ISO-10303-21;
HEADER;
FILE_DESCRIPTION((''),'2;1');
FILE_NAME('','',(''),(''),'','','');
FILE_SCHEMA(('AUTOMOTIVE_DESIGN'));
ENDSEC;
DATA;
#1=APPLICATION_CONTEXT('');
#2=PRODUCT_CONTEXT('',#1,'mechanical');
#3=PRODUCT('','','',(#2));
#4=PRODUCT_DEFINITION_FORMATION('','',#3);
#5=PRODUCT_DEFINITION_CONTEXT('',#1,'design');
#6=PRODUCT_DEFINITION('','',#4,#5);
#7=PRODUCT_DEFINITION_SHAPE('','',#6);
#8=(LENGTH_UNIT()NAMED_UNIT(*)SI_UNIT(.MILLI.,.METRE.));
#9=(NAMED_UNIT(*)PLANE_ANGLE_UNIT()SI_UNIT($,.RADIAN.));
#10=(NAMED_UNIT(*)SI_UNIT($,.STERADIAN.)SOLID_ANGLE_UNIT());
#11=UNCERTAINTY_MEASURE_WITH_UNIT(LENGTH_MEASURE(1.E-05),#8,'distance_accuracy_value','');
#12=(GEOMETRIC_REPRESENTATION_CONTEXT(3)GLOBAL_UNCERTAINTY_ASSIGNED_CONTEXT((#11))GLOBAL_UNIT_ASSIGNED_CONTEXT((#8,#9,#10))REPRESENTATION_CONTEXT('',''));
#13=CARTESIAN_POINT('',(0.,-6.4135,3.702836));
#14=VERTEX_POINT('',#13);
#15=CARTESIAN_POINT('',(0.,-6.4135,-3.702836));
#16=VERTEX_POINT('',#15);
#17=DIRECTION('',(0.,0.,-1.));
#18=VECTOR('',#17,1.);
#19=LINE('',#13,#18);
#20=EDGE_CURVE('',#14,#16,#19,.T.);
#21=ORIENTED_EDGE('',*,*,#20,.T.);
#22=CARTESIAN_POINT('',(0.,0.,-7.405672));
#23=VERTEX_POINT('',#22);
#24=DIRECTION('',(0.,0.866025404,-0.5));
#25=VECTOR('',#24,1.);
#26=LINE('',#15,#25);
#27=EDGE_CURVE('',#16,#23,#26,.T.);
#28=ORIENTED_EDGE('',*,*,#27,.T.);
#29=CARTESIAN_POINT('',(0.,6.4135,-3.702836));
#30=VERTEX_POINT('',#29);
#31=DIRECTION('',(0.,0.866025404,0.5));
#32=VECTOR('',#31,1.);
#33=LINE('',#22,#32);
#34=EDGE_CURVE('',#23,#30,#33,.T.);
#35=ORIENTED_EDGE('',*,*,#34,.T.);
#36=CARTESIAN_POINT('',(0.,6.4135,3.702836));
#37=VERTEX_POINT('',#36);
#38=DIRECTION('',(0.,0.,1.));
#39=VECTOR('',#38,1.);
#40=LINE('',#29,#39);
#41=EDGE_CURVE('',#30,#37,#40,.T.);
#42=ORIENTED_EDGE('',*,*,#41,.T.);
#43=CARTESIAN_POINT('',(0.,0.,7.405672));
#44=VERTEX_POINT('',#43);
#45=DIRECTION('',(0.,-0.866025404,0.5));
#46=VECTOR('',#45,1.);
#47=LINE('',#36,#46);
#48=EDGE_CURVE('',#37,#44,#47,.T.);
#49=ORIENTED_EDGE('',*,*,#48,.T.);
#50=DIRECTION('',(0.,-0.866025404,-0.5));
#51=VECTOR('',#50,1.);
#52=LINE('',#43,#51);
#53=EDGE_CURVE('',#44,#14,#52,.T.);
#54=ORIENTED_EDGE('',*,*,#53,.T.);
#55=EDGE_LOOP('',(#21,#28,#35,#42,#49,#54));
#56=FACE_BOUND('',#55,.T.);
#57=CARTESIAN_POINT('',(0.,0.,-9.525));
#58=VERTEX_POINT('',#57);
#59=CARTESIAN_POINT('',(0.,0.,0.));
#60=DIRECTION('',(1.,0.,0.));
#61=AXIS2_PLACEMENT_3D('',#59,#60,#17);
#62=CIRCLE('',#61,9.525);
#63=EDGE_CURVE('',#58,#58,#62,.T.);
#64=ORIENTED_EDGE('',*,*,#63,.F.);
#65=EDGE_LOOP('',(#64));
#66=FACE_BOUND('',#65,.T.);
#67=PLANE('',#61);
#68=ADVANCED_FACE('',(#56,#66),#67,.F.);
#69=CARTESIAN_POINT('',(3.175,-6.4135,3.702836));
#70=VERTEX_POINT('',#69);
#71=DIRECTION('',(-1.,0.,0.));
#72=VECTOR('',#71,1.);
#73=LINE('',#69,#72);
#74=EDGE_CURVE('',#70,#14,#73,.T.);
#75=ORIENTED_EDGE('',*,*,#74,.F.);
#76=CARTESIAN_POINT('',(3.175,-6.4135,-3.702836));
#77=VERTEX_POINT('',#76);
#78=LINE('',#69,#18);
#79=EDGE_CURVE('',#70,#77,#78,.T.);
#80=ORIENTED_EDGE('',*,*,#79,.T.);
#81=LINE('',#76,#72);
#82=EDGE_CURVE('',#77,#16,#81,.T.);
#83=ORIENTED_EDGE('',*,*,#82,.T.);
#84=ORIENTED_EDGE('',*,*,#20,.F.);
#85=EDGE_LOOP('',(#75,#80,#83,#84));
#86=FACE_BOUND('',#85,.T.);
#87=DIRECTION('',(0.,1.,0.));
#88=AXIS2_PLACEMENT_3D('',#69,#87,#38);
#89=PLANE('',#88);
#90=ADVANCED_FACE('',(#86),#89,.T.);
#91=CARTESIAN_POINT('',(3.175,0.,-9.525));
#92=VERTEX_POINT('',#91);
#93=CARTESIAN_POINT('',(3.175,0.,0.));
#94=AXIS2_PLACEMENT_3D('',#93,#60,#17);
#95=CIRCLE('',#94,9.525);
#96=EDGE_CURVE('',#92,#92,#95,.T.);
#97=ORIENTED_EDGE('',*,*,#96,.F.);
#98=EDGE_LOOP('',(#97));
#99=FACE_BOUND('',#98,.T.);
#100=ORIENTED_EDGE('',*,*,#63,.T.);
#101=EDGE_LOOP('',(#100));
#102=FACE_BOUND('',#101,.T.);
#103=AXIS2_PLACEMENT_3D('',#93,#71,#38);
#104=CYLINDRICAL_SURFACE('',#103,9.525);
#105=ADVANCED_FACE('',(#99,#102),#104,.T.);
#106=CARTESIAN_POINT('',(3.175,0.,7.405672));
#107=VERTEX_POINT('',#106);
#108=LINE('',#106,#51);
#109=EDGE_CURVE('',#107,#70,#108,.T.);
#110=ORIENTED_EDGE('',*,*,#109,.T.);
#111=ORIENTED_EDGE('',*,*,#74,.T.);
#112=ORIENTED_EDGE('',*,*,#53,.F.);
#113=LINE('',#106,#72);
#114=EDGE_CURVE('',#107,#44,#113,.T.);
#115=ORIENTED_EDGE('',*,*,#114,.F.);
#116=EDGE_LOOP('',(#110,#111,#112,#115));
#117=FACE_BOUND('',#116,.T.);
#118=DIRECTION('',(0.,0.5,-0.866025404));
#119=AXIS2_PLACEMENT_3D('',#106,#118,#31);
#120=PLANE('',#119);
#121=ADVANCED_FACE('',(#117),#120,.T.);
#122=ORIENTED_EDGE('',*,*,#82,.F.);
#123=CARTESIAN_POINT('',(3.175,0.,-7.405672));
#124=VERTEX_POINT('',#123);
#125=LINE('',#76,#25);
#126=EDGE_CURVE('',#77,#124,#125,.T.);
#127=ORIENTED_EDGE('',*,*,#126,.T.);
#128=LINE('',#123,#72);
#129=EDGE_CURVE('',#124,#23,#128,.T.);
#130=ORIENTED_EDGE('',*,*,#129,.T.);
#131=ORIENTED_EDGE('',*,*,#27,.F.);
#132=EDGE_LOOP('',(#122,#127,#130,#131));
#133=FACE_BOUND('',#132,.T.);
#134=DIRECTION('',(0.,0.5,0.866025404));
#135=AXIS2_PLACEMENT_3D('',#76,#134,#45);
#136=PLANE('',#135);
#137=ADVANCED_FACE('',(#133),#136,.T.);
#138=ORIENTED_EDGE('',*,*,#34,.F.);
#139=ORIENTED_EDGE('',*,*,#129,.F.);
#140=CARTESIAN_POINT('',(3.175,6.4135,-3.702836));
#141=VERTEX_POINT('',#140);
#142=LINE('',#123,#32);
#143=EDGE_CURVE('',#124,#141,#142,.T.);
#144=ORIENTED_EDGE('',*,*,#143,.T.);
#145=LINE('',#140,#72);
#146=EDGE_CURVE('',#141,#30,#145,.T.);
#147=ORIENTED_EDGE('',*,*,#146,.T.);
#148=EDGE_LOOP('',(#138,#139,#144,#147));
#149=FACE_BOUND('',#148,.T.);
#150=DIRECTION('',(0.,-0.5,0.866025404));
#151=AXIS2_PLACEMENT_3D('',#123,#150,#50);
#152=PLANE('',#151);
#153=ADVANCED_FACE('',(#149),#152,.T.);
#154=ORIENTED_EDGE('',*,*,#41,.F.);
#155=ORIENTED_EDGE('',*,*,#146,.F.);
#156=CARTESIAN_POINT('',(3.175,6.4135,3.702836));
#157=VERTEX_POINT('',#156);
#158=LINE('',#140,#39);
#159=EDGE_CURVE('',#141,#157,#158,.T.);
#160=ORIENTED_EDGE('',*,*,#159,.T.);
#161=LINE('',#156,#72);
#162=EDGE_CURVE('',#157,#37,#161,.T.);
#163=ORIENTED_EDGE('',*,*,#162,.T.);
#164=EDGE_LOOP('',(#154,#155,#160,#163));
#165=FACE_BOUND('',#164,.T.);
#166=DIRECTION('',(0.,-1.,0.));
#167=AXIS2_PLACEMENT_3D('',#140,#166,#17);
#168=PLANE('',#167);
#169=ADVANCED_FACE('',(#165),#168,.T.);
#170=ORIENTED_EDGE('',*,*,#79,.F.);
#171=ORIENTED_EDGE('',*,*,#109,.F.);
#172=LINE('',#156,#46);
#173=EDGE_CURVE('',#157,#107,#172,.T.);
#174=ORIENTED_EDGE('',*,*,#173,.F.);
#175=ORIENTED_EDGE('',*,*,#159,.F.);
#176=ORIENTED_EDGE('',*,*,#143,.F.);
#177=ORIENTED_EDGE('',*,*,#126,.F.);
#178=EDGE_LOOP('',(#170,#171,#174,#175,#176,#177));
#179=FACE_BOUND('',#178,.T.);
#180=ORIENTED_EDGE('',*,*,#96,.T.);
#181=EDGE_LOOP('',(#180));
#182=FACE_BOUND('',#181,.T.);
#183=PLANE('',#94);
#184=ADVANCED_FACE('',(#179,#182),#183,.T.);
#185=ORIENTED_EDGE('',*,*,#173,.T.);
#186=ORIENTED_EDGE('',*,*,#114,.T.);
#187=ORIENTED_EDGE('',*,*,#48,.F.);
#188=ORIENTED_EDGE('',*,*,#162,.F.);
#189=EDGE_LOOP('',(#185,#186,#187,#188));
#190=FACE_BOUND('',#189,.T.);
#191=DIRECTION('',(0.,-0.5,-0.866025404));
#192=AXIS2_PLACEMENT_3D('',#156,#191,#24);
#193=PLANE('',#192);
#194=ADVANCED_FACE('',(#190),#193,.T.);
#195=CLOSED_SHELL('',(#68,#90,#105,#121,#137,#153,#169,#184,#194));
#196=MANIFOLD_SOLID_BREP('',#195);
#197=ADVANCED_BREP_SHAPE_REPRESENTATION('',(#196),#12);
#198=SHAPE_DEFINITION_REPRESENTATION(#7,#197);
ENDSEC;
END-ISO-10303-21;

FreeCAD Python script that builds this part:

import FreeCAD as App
import Part
import Sketcher
Q = App.Units.Quantity

doc = App.newDocument("Part")
body = doc.addObject("PartDesign::Body", "Body")

# Sketch on YZ plane
sketch1 = body.newObject("Sketcher::SketchObject", "Sketch")
sketch1.AttachmentSupport = (doc.getObject("YZ_Plane"), [""])
sketch1.MapMode = "FlatFace"
sketch1.addGeometry([
    Part.Circle(App.Vector(0, 0, 0), App.Vector(0, 0, 1), 10),  # 0
    Part.LineSegment(App.Vector(6, 4, 0), App.Vector(6, -4, 0)),  # 1
    Part.LineSegment(App.Vector(6, -4, 0), App.Vector(0, -7, 0)),  # 2
    Part.LineSegment(App.Vector(0, -7, 0), App.Vector(-6, -4, 0)),  # 3
    Part.LineSegment(App.Vector(-6, -4, 0), App.Vector(-6, 4, 0)),  # 4
    Part.LineSegment(App.Vector(-6, 4, 0), App.Vector(0, 7, 0)),  # 5
    Part.LineSegment(App.Vector(0, 7, 0), App.Vector(6, 4, 0)),  # 6
], False)
sketch1.addConstraint([
    Sketcher.Constraint("Coincident", 1, 2, 2, 1),
    Sketcher.Constraint("Coincident", 2, 2, 3, 1),
    Sketcher.Constraint("Coincident", 3, 2, 4, 1),
    Sketcher.Constraint("Coincident", 4, 2, 5, 1),
    Sketcher.Constraint("Coincident", 5, 2, 6, 1),
    Sketcher.Constraint("Coincident", 6, 2, 1, 1),
    Sketcher.Constraint("Vertical", 1),
    Sketcher.Constraint("Vertical", 4),
    Sketcher.Constraint("Coincident", 0, 3, -1, 1),
    Sketcher.Constraint("Symmetric", 1, 2, 4, 2, -1, 1),
    Sketcher.Constraint("Symmetric", 2, 2, 5, 2, -1, 1),
    Sketcher.Constraint("PointOnObject", 2, 2, -2),
    Sketcher.Constraint("Parallel", 3, 6),
    Sketcher.Constraint("Horizontal", 1, 2, 3, 2),
    Sketcher.Constraint("Diameter", 0, Q("0.75 in")),
    Sketcher.Constraint("Angle", 2, Q("-150 deg")),
    Sketcher.Constraint("DistanceX", 3, 2, 1, 2, Q("0.505 in")),
    Sketcher.Constraint("DistanceY", 1, 2, 1, 1, Q("7.405672 mm")),
])
pad1 = body.newObject("PartDesign::Pad", "Pad")
pad1.Profile = sketch1
pad1.Length = Q("0.125 in")

doc.recompute()
